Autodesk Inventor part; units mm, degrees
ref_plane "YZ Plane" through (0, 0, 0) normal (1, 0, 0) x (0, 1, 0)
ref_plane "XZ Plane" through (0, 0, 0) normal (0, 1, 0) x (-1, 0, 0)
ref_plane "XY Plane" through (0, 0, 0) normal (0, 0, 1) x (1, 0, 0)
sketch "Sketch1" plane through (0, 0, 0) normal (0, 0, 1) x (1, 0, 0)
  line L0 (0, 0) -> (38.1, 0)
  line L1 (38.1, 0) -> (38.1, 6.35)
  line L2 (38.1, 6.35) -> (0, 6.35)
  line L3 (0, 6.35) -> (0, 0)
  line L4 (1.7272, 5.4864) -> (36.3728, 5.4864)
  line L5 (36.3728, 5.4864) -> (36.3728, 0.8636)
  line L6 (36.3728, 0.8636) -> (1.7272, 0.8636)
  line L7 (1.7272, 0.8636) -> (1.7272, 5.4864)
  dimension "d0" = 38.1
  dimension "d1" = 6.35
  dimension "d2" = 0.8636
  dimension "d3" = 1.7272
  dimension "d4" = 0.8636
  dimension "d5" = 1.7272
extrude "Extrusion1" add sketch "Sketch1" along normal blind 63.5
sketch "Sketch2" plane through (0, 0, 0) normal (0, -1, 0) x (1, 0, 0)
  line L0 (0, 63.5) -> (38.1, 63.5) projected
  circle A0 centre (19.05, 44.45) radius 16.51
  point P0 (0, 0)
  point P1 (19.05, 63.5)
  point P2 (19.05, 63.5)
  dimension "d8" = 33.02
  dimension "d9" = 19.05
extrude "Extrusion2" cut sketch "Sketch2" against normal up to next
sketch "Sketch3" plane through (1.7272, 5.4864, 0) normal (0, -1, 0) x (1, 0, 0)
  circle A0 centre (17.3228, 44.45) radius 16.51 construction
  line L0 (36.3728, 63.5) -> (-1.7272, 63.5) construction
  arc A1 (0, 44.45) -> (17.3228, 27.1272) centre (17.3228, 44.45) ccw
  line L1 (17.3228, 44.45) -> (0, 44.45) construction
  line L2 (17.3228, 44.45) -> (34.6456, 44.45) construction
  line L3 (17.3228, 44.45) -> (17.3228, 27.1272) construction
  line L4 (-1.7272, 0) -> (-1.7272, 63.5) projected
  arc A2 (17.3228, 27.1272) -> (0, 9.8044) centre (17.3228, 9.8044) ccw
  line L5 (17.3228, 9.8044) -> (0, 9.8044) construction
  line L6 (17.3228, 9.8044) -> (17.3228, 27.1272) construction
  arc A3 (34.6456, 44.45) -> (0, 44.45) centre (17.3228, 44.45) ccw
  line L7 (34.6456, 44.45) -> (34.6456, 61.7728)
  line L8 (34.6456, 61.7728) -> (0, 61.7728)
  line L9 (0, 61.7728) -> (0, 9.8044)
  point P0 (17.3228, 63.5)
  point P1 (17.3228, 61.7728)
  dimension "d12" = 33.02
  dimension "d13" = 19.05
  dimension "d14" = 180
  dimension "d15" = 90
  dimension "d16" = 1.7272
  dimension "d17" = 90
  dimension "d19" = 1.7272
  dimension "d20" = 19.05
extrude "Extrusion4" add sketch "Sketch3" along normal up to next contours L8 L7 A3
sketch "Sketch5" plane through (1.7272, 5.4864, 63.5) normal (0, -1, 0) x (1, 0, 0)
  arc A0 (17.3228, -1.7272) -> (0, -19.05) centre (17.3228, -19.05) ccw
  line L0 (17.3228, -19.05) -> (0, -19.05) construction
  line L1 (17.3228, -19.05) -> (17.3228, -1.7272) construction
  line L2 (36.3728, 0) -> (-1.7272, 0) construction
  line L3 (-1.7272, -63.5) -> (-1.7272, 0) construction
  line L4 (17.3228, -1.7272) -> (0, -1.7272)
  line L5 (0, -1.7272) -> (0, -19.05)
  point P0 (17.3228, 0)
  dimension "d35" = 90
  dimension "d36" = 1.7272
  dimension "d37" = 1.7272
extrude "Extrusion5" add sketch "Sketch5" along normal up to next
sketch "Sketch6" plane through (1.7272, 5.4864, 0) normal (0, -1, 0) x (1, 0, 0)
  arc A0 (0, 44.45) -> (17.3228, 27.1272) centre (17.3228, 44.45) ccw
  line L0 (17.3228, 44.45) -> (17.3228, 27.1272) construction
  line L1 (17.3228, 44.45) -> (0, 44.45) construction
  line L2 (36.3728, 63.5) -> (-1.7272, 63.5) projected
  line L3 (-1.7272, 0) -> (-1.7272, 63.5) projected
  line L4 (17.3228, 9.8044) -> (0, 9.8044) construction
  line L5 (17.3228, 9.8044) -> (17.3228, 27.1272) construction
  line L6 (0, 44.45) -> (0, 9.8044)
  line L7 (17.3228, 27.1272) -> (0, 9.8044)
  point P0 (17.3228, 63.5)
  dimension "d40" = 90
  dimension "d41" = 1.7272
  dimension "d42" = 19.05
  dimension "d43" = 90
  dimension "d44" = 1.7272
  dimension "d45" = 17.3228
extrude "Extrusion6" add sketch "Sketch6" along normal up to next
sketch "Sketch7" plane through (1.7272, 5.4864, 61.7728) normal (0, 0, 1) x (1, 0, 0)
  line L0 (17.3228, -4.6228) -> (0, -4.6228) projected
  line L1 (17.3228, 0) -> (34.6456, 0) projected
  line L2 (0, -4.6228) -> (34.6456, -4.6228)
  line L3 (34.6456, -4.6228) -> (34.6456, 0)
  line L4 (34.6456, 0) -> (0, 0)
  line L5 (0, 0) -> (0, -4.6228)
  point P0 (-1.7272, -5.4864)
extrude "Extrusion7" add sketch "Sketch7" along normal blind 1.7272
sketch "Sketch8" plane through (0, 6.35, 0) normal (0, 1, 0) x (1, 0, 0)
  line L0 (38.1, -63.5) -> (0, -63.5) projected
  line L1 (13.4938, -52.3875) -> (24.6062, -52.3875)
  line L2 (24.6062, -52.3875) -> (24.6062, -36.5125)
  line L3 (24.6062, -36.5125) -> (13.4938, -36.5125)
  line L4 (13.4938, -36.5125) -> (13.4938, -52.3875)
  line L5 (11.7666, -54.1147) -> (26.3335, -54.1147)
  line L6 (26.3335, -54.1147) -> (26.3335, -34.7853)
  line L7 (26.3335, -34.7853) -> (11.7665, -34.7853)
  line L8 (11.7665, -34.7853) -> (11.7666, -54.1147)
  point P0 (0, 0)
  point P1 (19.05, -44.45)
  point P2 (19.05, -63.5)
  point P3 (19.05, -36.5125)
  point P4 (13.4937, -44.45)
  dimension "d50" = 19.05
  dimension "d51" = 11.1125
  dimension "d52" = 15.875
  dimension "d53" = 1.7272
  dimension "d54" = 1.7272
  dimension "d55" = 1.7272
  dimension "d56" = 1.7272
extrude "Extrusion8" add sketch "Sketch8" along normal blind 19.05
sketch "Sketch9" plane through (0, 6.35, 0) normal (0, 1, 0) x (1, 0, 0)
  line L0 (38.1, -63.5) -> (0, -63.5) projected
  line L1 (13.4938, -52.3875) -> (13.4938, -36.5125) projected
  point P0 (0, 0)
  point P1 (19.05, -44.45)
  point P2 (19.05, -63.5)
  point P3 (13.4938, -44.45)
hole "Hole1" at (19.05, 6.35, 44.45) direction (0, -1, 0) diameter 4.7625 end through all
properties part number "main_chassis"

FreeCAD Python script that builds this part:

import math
import FreeCAD as App
import Part
import Sketcher
Q = App.Units.Quantity


def add_polygon(sketch, points):
    """Adds a closed chain of lines whose ends are joined by coincident constraints."""
    first, n = sketch.GeometryCount, len(points)
    for a, b in zip(points, points[1:] + points[:1]):
        sketch.addGeometry(Part.LineSegment(App.Vector(*a, 0), App.Vector(*b, 0)), False)
    for i in range(n):
        sketch.addConstraint(Sketcher.Constraint("Coincident", first + i, 2, first + (i + 1) % n, 1))

doc = App.newDocument("Part")
body = doc.addObject("PartDesign::Body", "Body")

sketch1 = body.newObject("Sketcher::SketchObject", "Sketch")
sketch1.AttachmentSupport = (doc.getObject("XY_Plane"), [""])
sketch1.MapMode = "FlatFace"
add_polygon(sketch1, [(0, 6.35), (0, 0), (38.1, 0), (38.1, 6.35)])
add_polygon(sketch1, [(1.7272, 0.8636), (1.7272, 5.4864), (36.3728, 5.4864), (36.3728, 0.8636)])
sketch1.addConstraint(Sketcher.Constraint("Vertical", 0))
sketch1.addConstraint(Sketcher.Constraint("Horizontal", 1))
sketch1.addConstraint(Sketcher.Constraint("Vertical", 2))
sketch1.addConstraint(Sketcher.Constraint("Horizontal", 3))
sketch1.addConstraint(Sketcher.Constraint("Vertical", 4))
sketch1.addConstraint(Sketcher.Constraint("Horizontal", 5))
sketch1.addConstraint(Sketcher.Constraint("Vertical", 6))
sketch1.addConstraint(Sketcher.Constraint("Horizontal", 7))
sketch1.addConstraint(Sketcher.Constraint("Coincident", 0, 2, -1, 1))
sketch1.addConstraint(Sketcher.Constraint("DistanceX", 1, 1, 1, 2, Q("1.5 in")))
sketch1.addConstraint(Sketcher.Constraint("DistanceY", 0, 2, 0, 1, Q("0.25 in")))
sketch1.addConstraint(Sketcher.Constraint("DistanceX", -1, 1, 4, 2, Q("0.068 in")))
sketch1.addConstraint(Sketcher.Constraint("DistanceY", -1, 1, 6, 2, Q("0.034 in")))
sketch1.addConstraint(Sketcher.Constraint("DistanceY", 4, 2, 3, 2, Q("0.034 in")))
sketch1.addConstraint(Sketcher.Constraint("DistanceX", 5, 2, 2, 2, Q("0.068 in")))
pad1 = body.newObject("PartDesign::Pad", "Pad")
pad1.Profile = sketch1
pad1.Length = Q("2.5 in")

sketch2 = body.newObject("Sketcher::SketchObject", "Sketch001")
sketch2.AttachmentSupport = (doc.getObject("XZ_Plane"), [""])
sketch2.MapMode = "FlatFace"
sketch2.addGeometry(Part.Circle(App.Vector(19.05, 44.45, 0), App.Vector(0, 0, 1), 16.51), False)
sketch2.addConstraint(Sketcher.Constraint("Diameter", 0, Q("1.3 in")))
sketch2.addConstraint(Sketcher.Constraint("DistanceX", -1, 1, 0, 3, Q("0.75 in")))
sketch2.addConstraint(Sketcher.Constraint("DistanceY", -1, 1, 0, 3, Q("1.75 in")))
pocket1 = body.newObject("PartDesign::Pocket", "Pocket")
pocket1.Profile = sketch2
pocket1.Type = "UpToFirst"

sketch3 = body.newObject("Sketcher::SketchObject", "Sketch002")
sketch3.AttachmentSupport = (doc.getObject("XZ_Plane"), [""])
sketch3.MapMode = "FlatFace"
sketch3.AttachmentOffset = App.Placement(App.Vector(0, 0, -0.216 * 25.4), App.Rotation())
sketch3.addGeometry(Part.LineSegment(App.Vector(36.3728, 61.7728, 0), App.Vector(19.05, 61.7728, 0)), False)
sketch3.addGeometry(Part.ArcOfCircle(Part.Circle(App.Vector(19.05, 44.45, 0), App.Vector(0, 0, 1), 17.3228), math.radians(0), math.radians(90)), False)
sketch3.addGeometry(Part.LineSegment(App.Vector(36.3728, 44.45, 0), App.Vector(36.3728, 61.7728, 0)), False)
sketch3.addConstraint(Sketcher.Constraint("Tangent", 0, 2, 1, 2))
sketch3.addConstraint(Sketcher.Constraint("Tangent", 1, 1, 2, 1))
sketch3.addConstraint(Sketcher.Constraint("Coincident", 2, 2, 0, 1))
sketch3.addConstraint(Sketcher.Constraint("Horizontal", 0))
sketch3.addConstraint(Sketcher.Constraint("Vertical", 2))
sketch3.addConstraint(Sketcher.Constraint("DistanceX", -1, 1, 1, 3, Q("0.75 in")))
sketch3.addConstraint(Sketcher.Constraint("Radius", 1, Q("0.682 in")))
sketch3.addConstraint(Sketcher.Constraint("DistanceY", -1, 1, 1, 3, Q("1.75 in")))
pad2 = body.newObject("PartDesign::Pad", "Pad001")
pad2.Profile = sketch3
pad2.Type = "UpToFirst"

sketch4 = body.newObject("Sketcher::SketchObject", "Sketch003")
sketch4.AttachmentSupport = (doc.getObject("XZ_Plane"), [""])
sketch4.MapMode = "FlatFace"
sketch4.AttachmentOffset = App.Placement(App.Vector(0, 0, -0.216 * 25.4), App.Rotation())
sketch4.addGeometry(Part.ArcOfCircle(Part.Circle(App.Vector(19.05, 44.45, 0), App.Vector(0, 0, 1), 17.3228), math.radians(90), math.radians(180)), False)
sketch4.addGeometry(Part.LineSegment(App.Vector(19.05, 61.7728, 0), App.Vector(1.7272, 61.7728, 0)), False)
sketch4.addGeometry(Part.LineSegment(App.Vector(1.7272, 61.7728, 0), App.Vector(1.7272, 44.45, 0)), False)
sketch4.addConstraint(Sketcher.Constraint("Tangent", 0, 1, 1, 1))
sketch4.addConstraint(Sketcher.Constraint("Coincident", 1, 2, 2, 1))
sketch4.addConstraint(Sketcher.Constraint("Tangent", 2, 2, 0, 2))
sketch4.addConstraint(Sketcher.Constraint("Horizontal", 1))
sketch4.addConstraint(Sketcher.Constraint("Vertical", 2))
sketch4.addConstraint(Sketcher.Constraint("DistanceX", -1, 1, 1, 2, Q("0.068 in")))
sketch4.addConstraint(Sketcher.Constraint("Radius", 0, Q("0.682 in")))
sketch4.addConstraint(Sketcher.Constraint("DistanceY", -1, 1, 0, 3, Q("1.75 in")))
pad3 = body.newObject("PartDesign::Pad", "Pad002")
pad3.Profile = sketch4
pad3.Type = "UpToFirst"

sketch5 = body.newObject("Sketcher::SketchObject", "Sketch004")
sketch5.AttachmentSupport = (doc.getObject("XZ_Plane"), [""])
sketch5.MapMode = "FlatFace"
sketch5.AttachmentOffset = App.Placement(App.Vector(0, 0, -0.216 * 25.4), App.Rotation())
sketch5.addGeometry(Part.ArcOfCircle(Part.Circle(App.Vector(19.05, 44.45, 0), App.Vector(0, 0, 1), 17.3228), math.radians(180), math.radians(270)), False)
sketch5.addGeometry(Part.LineSegment(App.Vector(1.7272, 44.45, 0), App.Vector(1.7272, 9.8044, 0)), False)
sketch5.addGeometry(Part.LineSegment(App.Vector(1.7272, 9.8044, 0), App.Vector(19.05, 27.1272, 0)), False)
sketch5.addConstraint(Sketcher.Constraint("Tangent", 0, 1, 1, 1))
sketch5.addConstraint(Sketcher.Constraint("Coincident", 1, 2, 2, 1))
sketch5.addConstraint(Sketcher.Constraint("Coincident", 2, 2, 0, 2))
sketch5.addConstraint(Sketcher.Constraint("Vertical", 1))
sketch5.addConstraint(Sketcher.Constraint("Vertical", 0, 3, 2, 2))
sketch5.addConstraint(Sketcher.Constraint("Radius", 0, Q("0.682 in")))
sketch5.addConstraint(Sketcher.Constraint("DistanceX", -1, 1, 0, 3, Q("0.75 in")))
sketch5.addConstraint(Sketcher.Constraint("Angle", 2, Q("45 deg")))
sketch5.addConstraint(Sketcher.Constraint("DistanceY", -1, 1, 0, 3, Q("1.75 in")))
pad4 = body.newObject("PartDesign::Pad", "Pad003")
pad4.Profile = sketch5
pad4.Type = "UpToFirst"

sketch6 = body.newObject("Sketcher::SketchObject", "Sketch005")
sketch6.AttachmentSupport = (doc.getObject("XY_Plane"), [""])
sketch6.MapMode = "FlatFace"
sketch6.AttachmentOffset = App.Placement(App.Vector(0, 0, 2.432 * 25.4), App.Rotation())
add_polygon(sketch6, [(1.7272, 0.8636), (36.3728, 0.8636), (36.3728, 5.4864), (1.7272, 5.4864)])
sketch6.addConstraint(Sketcher.Constraint("Horizontal", 0))
sketch6.addConstraint(Sketcher.Constraint("Vertical", 1))
sketch6.addConstraint(Sketcher.Constraint("Horizontal", 2))
sketch6.addConstraint(Sketcher.Constraint("Vertical", 3))
sketch6.addConstraint(Sketcher.Constraint("DistanceX", 0, 1, 0, 2, Q("1.364 in")))
sketch6.addConstraint(Sketcher.Constraint("DistanceY", 1, 1, 1, 2, Q("0.182 in")))
sketch6.addConstraint(Sketcher.Constraint("DistanceX", -1, 1, 0, 2, Q("1.432 in")))
sketch6.addConstraint(Sketcher.Constraint("DistanceY", -1, 1, 0, 2, Q("0.034 in")))
pad5 = body.newObject("PartDesign::Pad", "Pad004")
pad5.Profile = sketch6
pad5.Length = Q("0.068 in")

sketch7 = body.newObject("Sketcher::SketchObject", "Sketch006")
sketch7.AttachmentSupport = (doc.getObject("XZ_Plane"), [""])
sketch7.MapMode = "FlatFace"
sketch7.AttachmentOffset = App.Placement(App.Vector(0, 0, -0.25 * 25.4), App.Rotation())
add_polygon(sketch7, [(11.7665, 34.7853), (11.7666, 54.1147), (26.3335, 54.1147), (26.3335, 34.7853)])
add_polygon(sketch7, [(24.6062, 52.3875), (13.4938, 52.3875), (13.4938, 36.5125), (24.6062, 36.5125)])
sketch7.addConstraint(Sketcher.Constraint("Vertical", 0))
sketch7.addConstraint(Sketcher.Constraint("Horizontal", 1))
sketch7.addConstraint(Sketcher.Constraint("Vertical", 2))
sketch7.addConstraint(Sketcher.Constraint("Horizontal", 3))
sketch7.addConstraint(Sketcher.Constraint("Horizontal", 4))
sketch7.addConstraint(Sketcher.Constraint("Vertical", 5))
sketch7.addConstraint(Sketcher.Constraint("Horizontal", 6))
sketch7.addConstraint(Sketcher.Constraint("Vertical", 7))
sketch7.addConstraint(Sketcher.Constraint("DistanceX", 4, 2, 4, 1, Q("0.4375 in")))
sketch7.addConstraint(Sketcher.Constraint("DistanceY", 5, 2, 5, 1, Q("0.625 in")))
sketch7.addConstraint(Sketcher.Constraint("DistanceX", 0, 2, 4, 2, Q("0.068 in")))
sketch7.addConstraint(Sketcher.Constraint("DistanceY", 4, 2, 0, 2, Q("0.068 in")))
sketch7.addConstraint(Sketcher.Constraint("DistanceY", 3, 2, 5, 2, Q("0.068 in")))
sketch7.addConstraint(Sketcher.Constraint("DistanceX", 6, 2, 2, 2, Q("0.068 in")))
sketch7.addConstraint(Sketcher.Constraint("DistanceX", -1, 1, 4, 2, Q("0.531252 in")))
sketch7.addConstraint(Sketcher.Constraint("DistanceY", -1, 1, 4, 2, Q("2.0625 in")))
pad6 = body.newObject("PartDesign::Pad", "Pad005")
pad6.Profile = sketch7
pad6.Length = Q("0.75 in")
pad6.Reversed = True

sketch8 = body.newObject("Sketcher::SketchObject", "Sketch007")
sketch8.AttachmentSupport = (doc.getObject("XZ_Plane"), [""])
sketch8.MapMode = "FlatFace"
sketch8.AttachmentOffset = App.Placement(App.Vector(0, 0, -0.25 * 25.4), App.Rotation())
sketch8.addGeometry(Part.Circle(App.Vector(19.05, 44.45, 0), App.Vector(0, 0, 1), 2.38125), False)
sketch8.addConstraint(Sketcher.Constraint("Diameter", 0, Q("0.1875 in")))
sketch8.addConstraint(Sketcher.Constraint("DistanceX", -1, 1, 0, 3, Q("0.75 in")))
sketch8.addConstraint(Sketcher.Constraint("DistanceY", -1, 1, 0, 3, Q("1.75 in")))
doc.recompute()
hole = body.newObject("PartDesign::Hole", "Hole")
hole.Profile = sketch8
hole.ThreadType = "None"
hole.Diameter = Q("0.1875 in")
hole.DepthType = "ThroughAll"
hole.Reversed = True

doc.recompute()
